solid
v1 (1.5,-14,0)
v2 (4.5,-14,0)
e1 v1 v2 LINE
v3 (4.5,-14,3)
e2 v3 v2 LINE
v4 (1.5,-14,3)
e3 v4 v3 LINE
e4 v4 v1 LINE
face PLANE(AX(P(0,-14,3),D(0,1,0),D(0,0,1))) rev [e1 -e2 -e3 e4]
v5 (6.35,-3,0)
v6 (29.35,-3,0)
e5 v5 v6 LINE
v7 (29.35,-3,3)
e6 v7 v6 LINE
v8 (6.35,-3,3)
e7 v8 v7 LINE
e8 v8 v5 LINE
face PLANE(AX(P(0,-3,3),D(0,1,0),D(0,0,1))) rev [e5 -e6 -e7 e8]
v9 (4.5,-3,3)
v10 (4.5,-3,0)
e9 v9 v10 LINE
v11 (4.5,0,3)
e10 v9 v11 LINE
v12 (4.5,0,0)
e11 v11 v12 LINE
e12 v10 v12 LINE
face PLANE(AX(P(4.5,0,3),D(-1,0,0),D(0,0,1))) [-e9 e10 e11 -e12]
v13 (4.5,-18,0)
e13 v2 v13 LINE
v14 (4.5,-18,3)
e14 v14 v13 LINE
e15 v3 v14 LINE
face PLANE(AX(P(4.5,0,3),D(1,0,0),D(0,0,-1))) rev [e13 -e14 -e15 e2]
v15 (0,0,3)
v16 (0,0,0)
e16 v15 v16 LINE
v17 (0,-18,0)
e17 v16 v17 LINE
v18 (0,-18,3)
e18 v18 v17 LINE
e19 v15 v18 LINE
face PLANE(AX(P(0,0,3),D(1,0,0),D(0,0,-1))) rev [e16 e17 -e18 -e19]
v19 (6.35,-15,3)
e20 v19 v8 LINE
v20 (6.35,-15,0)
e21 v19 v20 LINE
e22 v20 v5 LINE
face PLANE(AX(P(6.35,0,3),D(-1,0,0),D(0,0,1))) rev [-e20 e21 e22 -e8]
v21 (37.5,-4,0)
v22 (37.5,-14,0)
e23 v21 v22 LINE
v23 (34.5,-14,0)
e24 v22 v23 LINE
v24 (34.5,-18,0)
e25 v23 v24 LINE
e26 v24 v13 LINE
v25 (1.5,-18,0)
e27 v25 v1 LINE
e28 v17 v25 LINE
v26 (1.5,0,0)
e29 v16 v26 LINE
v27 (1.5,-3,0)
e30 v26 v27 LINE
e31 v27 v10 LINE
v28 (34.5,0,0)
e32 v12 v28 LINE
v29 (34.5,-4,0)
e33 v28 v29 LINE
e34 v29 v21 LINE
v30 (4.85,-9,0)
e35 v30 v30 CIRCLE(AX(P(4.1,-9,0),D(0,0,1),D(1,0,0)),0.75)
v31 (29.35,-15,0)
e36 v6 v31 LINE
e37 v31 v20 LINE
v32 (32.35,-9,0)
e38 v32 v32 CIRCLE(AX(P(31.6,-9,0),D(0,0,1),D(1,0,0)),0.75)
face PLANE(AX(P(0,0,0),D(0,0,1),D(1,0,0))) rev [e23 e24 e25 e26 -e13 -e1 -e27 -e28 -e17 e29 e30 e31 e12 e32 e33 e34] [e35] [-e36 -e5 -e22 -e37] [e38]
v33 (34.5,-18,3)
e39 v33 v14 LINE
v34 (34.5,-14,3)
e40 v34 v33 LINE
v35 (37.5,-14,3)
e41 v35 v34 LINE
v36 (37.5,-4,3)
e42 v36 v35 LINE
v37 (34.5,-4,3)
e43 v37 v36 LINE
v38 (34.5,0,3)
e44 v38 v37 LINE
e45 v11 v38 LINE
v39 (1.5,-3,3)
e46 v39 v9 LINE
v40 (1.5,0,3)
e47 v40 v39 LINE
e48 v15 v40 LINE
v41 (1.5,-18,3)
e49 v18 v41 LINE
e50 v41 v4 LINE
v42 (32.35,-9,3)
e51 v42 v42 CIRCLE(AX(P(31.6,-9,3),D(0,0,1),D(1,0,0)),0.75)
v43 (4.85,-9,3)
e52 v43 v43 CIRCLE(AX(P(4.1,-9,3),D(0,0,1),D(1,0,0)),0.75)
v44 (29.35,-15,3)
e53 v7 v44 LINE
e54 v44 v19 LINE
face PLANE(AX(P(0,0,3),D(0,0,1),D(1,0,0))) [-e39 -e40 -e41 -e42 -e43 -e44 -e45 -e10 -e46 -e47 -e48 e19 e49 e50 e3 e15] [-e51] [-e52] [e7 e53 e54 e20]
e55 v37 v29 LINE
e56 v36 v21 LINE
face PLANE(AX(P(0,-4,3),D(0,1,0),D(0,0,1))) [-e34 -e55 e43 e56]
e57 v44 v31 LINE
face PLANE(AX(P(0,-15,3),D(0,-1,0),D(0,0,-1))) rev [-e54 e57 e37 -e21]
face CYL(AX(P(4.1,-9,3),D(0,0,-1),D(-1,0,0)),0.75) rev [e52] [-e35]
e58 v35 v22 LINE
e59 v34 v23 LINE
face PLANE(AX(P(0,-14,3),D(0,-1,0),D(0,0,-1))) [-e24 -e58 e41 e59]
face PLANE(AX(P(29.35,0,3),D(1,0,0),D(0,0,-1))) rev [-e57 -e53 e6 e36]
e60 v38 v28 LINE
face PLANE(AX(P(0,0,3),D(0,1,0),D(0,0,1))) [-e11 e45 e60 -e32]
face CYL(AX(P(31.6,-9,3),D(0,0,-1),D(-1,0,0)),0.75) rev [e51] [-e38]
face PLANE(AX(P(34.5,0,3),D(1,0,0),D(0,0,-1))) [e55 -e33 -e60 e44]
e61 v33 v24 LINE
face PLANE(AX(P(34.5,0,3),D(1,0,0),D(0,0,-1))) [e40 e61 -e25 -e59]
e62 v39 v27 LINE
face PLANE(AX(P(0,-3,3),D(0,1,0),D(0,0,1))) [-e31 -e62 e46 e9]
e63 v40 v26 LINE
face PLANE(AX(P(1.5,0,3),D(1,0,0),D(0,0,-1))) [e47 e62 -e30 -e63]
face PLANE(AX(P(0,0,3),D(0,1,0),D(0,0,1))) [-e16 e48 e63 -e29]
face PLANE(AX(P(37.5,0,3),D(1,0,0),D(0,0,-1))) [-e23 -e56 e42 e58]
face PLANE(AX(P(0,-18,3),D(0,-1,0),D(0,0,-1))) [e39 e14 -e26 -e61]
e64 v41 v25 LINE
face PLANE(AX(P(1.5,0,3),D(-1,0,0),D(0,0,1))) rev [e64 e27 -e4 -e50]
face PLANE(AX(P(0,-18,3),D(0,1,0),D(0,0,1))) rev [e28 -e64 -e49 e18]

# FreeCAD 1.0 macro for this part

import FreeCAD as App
import Part
import Sketcher

V = App.Vector
Q = App.Units.Quantity

doc = App.newDocument("Part")
params = doc.addObject("Spreadsheet::Sheet", "Params")
for row, (alias, value) in enumerate([
    ("sketch1_diameter", "1.5 mm"),
    ("sketch1_width", "3 mm"),
    ("sketch1_width2", "30 mm"),
    ("sketch1_width3", "23 mm"),
    ("sketch1_height", "18 mm"),
    ("pad1_length", "3 mm"),
], start=1):
    params.set(f"A{row}", alias)
    params.set(f"B{row}", "=" + value)
    params.setAlias(f"B{row}", alias)

body = doc.addObject("PartDesign::Body", "Body")

# Sketch on XY plane
sketch1 = body.newObject("Sketcher::SketchObject", "Sketch")
sketch1.AttachmentSupport = (doc.getObject("XY_Plane"), [""])
sketch1.MapMode = "FlatFace"
sketch1.addGeometry(Part.LineSegment(V(4.5, -3, 0), V(1.5, -3, 0)), False)
sketch1.addGeometry(Part.LineSegment(V(1.5, -3, 0), V(1.5, 0, 0)), False)
sketch1.addGeometry(Part.LineSegment(V(1.5, 0, 0), V(0, 0, 0)), False)
sketch1.addGeometry(Part.LineSegment(V(0, 0, 0), V(0, -18, 0)), False)
sketch1.addGeometry(Part.LineSegment(V(0, -18, 0), V(1.5, -18, 0)), False)
sketch1.addGeometry(Part.LineSegment(V(1.5, -18, 0), V(1.5, -14, 0)), False)
sketch1.addGeometry(Part.LineSegment(V(1.5, -14, 0), V(4.5, -14, 0)), False)
sketch1.addGeometry(Part.LineSegment(V(4.5, -14, 0), V(4.5, -18, 0)), False)
sketch1.addGeometry(Part.LineSegment(V(4.5, -18, 0), V(34.5, -18, 0)), False)
sketch1.addGeometry(Part.LineSegment(V(34.5, -18, 0), V(34.5, -14, 0)), False)
sketch1.addGeometry(Part.LineSegment(V(34.5, -14, 0), V(37.5, -14, 0)), False)
sketch1.addGeometry(Part.LineSegment(V(37.5, -14, 0), V(37.5, -4, 0)), False)
sketch1.addGeometry(Part.LineSegment(V(37.5, -4, 0), V(34.5, -4, 0)), False)
sketch1.addGeometry(Part.LineSegment(V(34.5, -4, 0), V(34.5, 0, 0)), False)
sketch1.addGeometry(Part.LineSegment(V(34.5, 0, 0), V(4.5, 0, 0)), False)
sketch1.addGeometry(Part.LineSegment(V(4.5, 0, 0), V(4.5, -3, 0)), False)
sketch1.addGeometry(Part.Circle(V(31.6, -9, 0), V(0, 0, 1), 0.75), False)
sketch1.addGeometry(Part.LineSegment(V(29.35, -15, 0), V(6.35, -15, 0)), False)
sketch1.addGeometry(Part.LineSegment(V(6.35, -15, 0), V(6.35, -3, 0)), False)
sketch1.addGeometry(Part.LineSegment(V(6.35, -3, 0), V(29.35, -3, 0)), False)
sketch1.addGeometry(Part.LineSegment(V(29.35, -3, 0), V(29.35, -15, 0)), False)
sketch1.addGeometry(Part.Circle(V(4.1, -9, 0), V(0, 0, 1), 0.75), False)
sketch1.addConstraint(Sketcher.Constraint("Coincident", 0, 2, 1, 1))
sketch1.addConstraint(Sketcher.Constraint("Coincident", 1, 2, 2, 1))
sketch1.addConstraint(Sketcher.Constraint("Coincident", 2, 2, 3, 1))
sketch1.addConstraint(Sketcher.Constraint("Coincident", 3, 2, 4, 1))
sketch1.addConstraint(Sketcher.Constraint("Coincident", 4, 2, 5, 1))
sketch1.addConstraint(Sketcher.Constraint("Coincident", 5, 2, 6, 1))
sketch1.addConstraint(Sketcher.Constraint("Coincident", 6, 2, 7, 1))
sketch1.addConstraint(Sketcher.Constraint("Coincident", 7, 2, 8, 1))
sketch1.addConstraint(Sketcher.Constraint("Coincident", 8, 2, 9, 1))
sketch1.addConstraint(Sketcher.Constraint("Coincident", 9, 2, 10, 1))
sketch1.addConstraint(Sketcher.Constraint("Coincident", 10, 2, 11, 1))
sketch1.addConstraint(Sketcher.Constraint("Coincident", 11, 2, 12, 1))
sketch1.addConstraint(Sketcher.Constraint("Coincident", 12, 2, 13, 1))
sketch1.addConstraint(Sketcher.Constraint("Coincident", 13, 2, 14, 1))
sketch1.addConstraint(Sketcher.Constraint("Coincident", 14, 2, 15, 1))
sketch1.addConstraint(Sketcher.Constraint("Coincident", 15, 2, 0, 1))
sketch1.addConstraint(Sketcher.Constraint("Coincident", 17, 2, 18, 1))
sketch1.addConstraint(Sketcher.Constraint("Coincident", 18, 2, 19, 1))
sketch1.addConstraint(Sketcher.Constraint("Coincident", 19, 2, 20, 1))
sketch1.addConstraint(Sketcher.Constraint("Coincident", 20, 2, 17, 1))
sketch1.addConstraint(Sketcher.Constraint("Horizontal", 0))
sketch1.addConstraint(Sketcher.Constraint("Vertical", 1))
sketch1.addConstraint(Sketcher.Constraint("Horizontal", 2))
sketch1.addConstraint(Sketcher.Constraint("Vertical", 3))
sketch1.addConstraint(Sketcher.Constraint("Horizontal", 4))
sketch1.addConstraint(Sketcher.Constraint("Vertical", 5))
sketch1.addConstraint(Sketcher.Constraint("Horizontal", 6))
sketch1.addConstraint(Sketcher.Constraint("Vertical", 7))
sketch1.addConstraint(Sketcher.Constraint("Horizontal", 8))
sketch1.addConstraint(Sketcher.Constraint("Vertical", 9))
sketch1.addConstraint(Sketcher.Constraint("Horizontal", 10))
sketch1.addConstraint(Sketcher.Constraint("Vertical", 11))
sketch1.addConstraint(Sketcher.Constraint("Horizontal", 12))
sketch1.addConstraint(Sketcher.Constraint("Vertical", 13))
sketch1.addConstraint(Sketcher.Constraint("Horizontal", 14))
sketch1.addConstraint(Sketcher.Constraint("Vertical", 15))
sketch1.addConstraint(Sketcher.Constraint("Horizontal", 17))
sketch1.addConstraint(Sketcher.Constraint("Vertical", 18))
sketch1.addConstraint(Sketcher.Constraint("Horizontal", 19))
sketch1.addConstraint(Sketcher.Constraint("Vertical", 20))
sketch1.addConstraint(Sketcher.Constraint("Coincident", 2, 2, -1, 1))
sketch1.addConstraint(Sketcher.Constraint("Equal", 16, 21))
sketch1.addConstraint(Sketcher.Constraint("PointOnObject", 13, 2, -1))
sketch1.addConstraint(Sketcher.Constraint("Horizontal", 16, 3, 21, 3))
sketch1.addConstraint(Sketcher.Constraint("Horizontal", 4, 2, 7, 2))
sketch1.addConstraint(Sketcher.Constraint("Horizontal", 6, 2, 9, 2))
sketch1.addConstraint(Sketcher.Constraint("Horizontal", 15, 2, 18, 2))
sketch1.addConstraint(Sketcher.Constraint("Vertical", 1, 2, 4, 2))
sketch1.addConstraint(Sketcher.Constraint("Vertical", 9, 2, 12, 2))
sketch1.addConstraint(Sketcher.Constraint("Vertical", 7, 2, 14, 2))
sketch1.addConstraint(Sketcher.Constraint("Equal", 6, 10))
sketch1.addConstraint(Sketcher.Constraint("Equal", 12, 1))
sketch1.addConstraint(Sketcher.Constraint("Equal", 9, 13))
sketch1.addConstraint(Sketcher.Constraint("Diameter", 16, Q("1.5 mm")))
sketch1.addConstraint(Sketcher.Constraint("DistanceX", 0, 2, 0, 1, Q("3 mm")))
sketch1.addConstraint(Sketcher.Constraint("DistanceX", 8, 1, 8, 2, Q("30 mm")))
sketch1.addConstraint(Sketcher.Constraint("DistanceX", 17, 2, 17, 1, Q("23 mm")))
sketch1.addConstraint(Sketcher.Constraint("DistanceY", 3, 2, 3, 1, Q("18 mm")))
sketch1.addConstraint(Sketcher.Constraint("DistanceY", 5, 1, 5, 2, Q("4 mm")))
sketch1.addConstraint(Sketcher.Constraint("DistanceY", 18, 1, 18, 2, Q("12 mm")))
sketch1.addConstraint(Sketcher.Constraint("DistanceX", 2, 2, 2, 1, Q("1.5 mm")))
sketch1.addConstraint(Sketcher.Constraint("DistanceY", 16, 3, -1, 1, Q("9 mm")))
sketch1.addConstraint(Sketcher.Constraint("DistanceX", -1, 1, 16, 3, Q("31.6 mm")))
sketch1.addConstraint(Sketcher.Constraint("DistanceX", -1, 1, 21, 3, Q("4.1 mm")))
sketch1.addConstraint(Sketcher.Constraint("DistanceX", -1, 1, 17, 2, Q("6.35 mm")))
sketch1.setExpression("Constraints[53]", "Params.sketch1_diameter")
sketch1.setExpression("Constraints[54]", "Params.sketch1_width")
sketch1.setExpression("Constraints[55]", "Params.sketch1_width2")
sketch1.setExpression("Constraints[56]", "Params.sketch1_width3")
sketch1.setExpression("Constraints[57]", "Params.sketch1_height")
pad1 = body.newObject("PartDesign::Pad", "Pad")
pad1.Profile = sketch1
pad1.setExpression("Length", "Params.pad1_length")

doc.recompute()
